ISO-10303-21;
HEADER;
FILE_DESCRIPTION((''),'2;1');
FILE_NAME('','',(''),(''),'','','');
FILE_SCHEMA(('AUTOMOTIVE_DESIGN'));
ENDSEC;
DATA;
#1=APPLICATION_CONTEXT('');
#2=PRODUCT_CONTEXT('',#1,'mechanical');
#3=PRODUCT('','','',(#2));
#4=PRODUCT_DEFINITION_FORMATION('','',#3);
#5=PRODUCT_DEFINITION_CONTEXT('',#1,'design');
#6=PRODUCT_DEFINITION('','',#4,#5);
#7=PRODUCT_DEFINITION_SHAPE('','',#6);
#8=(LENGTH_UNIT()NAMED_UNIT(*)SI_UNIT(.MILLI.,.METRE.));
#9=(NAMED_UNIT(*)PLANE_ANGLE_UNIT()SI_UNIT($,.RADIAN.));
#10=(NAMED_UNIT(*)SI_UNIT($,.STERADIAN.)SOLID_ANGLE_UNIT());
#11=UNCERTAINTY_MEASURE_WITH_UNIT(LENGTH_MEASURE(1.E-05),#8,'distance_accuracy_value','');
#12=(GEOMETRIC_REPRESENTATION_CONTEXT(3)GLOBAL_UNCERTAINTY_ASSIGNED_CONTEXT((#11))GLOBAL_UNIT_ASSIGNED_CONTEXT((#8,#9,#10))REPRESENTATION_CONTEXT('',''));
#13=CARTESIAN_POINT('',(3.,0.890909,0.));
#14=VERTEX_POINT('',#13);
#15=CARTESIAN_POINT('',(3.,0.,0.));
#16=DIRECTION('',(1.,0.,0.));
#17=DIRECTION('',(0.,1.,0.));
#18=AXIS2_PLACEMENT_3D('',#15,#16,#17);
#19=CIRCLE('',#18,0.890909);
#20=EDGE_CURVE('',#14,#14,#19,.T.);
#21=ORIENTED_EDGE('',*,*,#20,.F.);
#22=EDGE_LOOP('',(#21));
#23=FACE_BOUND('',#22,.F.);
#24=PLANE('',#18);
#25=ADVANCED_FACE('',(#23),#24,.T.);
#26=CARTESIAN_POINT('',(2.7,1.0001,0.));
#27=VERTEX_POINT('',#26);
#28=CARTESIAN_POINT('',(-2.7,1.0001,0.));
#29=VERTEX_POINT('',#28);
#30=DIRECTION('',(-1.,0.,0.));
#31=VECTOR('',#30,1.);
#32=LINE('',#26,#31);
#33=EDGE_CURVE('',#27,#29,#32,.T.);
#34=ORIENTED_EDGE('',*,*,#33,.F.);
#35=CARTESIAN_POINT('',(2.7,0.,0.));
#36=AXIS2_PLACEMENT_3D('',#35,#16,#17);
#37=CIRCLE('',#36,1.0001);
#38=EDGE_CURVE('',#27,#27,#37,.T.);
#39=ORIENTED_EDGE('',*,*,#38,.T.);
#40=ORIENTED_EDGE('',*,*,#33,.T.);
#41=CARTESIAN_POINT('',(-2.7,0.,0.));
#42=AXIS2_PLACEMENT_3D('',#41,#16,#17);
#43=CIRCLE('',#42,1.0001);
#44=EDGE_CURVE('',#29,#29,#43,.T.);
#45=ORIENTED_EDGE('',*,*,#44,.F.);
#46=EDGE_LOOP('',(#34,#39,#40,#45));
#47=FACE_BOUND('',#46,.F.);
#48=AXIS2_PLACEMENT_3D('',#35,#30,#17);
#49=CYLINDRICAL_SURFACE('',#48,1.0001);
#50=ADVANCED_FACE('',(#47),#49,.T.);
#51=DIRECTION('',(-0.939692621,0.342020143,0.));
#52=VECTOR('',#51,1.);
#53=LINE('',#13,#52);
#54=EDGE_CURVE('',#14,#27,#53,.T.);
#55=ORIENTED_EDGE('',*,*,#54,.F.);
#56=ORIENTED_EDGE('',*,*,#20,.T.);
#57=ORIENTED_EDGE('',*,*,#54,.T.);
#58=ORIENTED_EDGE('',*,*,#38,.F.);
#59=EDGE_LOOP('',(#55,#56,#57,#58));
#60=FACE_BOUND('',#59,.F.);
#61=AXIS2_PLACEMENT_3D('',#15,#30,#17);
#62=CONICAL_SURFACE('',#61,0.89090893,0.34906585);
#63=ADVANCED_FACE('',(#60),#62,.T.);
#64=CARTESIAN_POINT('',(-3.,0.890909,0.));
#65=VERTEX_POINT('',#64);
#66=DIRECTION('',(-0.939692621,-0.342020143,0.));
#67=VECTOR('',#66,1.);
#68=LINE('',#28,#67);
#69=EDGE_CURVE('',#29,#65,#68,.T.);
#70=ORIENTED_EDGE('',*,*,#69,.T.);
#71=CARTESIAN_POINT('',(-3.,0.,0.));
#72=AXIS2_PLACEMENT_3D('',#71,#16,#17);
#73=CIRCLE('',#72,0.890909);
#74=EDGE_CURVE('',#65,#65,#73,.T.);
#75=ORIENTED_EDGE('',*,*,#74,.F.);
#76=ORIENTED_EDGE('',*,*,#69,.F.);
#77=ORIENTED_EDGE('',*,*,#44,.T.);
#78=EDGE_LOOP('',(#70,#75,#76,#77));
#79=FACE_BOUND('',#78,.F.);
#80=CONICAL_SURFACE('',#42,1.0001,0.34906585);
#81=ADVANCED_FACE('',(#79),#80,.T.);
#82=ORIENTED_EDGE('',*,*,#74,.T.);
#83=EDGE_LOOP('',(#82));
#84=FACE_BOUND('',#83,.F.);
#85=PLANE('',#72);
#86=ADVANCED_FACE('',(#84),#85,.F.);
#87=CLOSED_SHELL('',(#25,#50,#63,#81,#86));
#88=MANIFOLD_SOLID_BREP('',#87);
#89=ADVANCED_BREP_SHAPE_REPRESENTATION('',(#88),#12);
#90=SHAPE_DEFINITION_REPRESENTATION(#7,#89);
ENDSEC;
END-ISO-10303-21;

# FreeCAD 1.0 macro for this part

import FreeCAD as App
import Part
import Sketcher

V = App.Vector
Q = App.Units.Quantity


def add_polygon(sketch, points):
    """Adds a closed chain of lines whose ends are joined by coincident constraints."""
    first, n = sketch.GeometryCount, len(points)
    for a, b in zip(points, points[1:] + points[:1]):
        sketch.addGeometry(Part.LineSegment(App.Vector(*a, 0), App.Vector(*b, 0)), False)
    for i in range(n):
        sketch.addConstraint(Sketcher.Constraint("Coincident", first + i, 2, first + (i + 1) % n, 1))

doc = App.newDocument("Part")
body = doc.addObject("PartDesign::Body", "Body")

# Sketch on XY plane
sketch1 = body.newObject("Sketcher::SketchObject", "Sketch")
sketch1.AttachmentSupport = (doc.getObject("XY_Plane"), [""])
sketch1.MapMode = "FlatFace"
add_polygon(sketch1, [(-3, 0.89), (-3, 0), (3, 0), (3, 0.89), (2.7, 1), (-2.7, 1)])  # lines 0-5
sketch1.addConstraint([
    Sketcher.Constraint("Vertical", 0),
    Sketcher.Constraint("Horizontal", 1),
    Sketcher.Constraint("Vertical", 2),
    Sketcher.Constraint("Horizontal", 4),
    Sketcher.Constraint("Symmetric", 0, 2, 1, 2, -1, 1),
    Sketcher.Constraint("Horizontal", 2, 2, 5, 2),
    Sketcher.Constraint("Equal", 3, 5),
    Sketcher.Constraint("DistanceX", 1, 1, 1, 2, 6.0),
    Sketcher.Constraint("Angle", 3, Q("160 deg")),
    Sketcher.Constraint("DistanceX", 4, 2, 4, 1, 5.4),
    Sketcher.Constraint("DistanceY", 0, 2, 0, 1, 0.890909),
])
revolution = body.newObject("PartDesign::Revolution", "Revolution")
revolution.Profile = sketch1
revolution.ReferenceAxis = (sketch1, ["H_Axis"])
revolution.Angle = 360

doc.recompute()
